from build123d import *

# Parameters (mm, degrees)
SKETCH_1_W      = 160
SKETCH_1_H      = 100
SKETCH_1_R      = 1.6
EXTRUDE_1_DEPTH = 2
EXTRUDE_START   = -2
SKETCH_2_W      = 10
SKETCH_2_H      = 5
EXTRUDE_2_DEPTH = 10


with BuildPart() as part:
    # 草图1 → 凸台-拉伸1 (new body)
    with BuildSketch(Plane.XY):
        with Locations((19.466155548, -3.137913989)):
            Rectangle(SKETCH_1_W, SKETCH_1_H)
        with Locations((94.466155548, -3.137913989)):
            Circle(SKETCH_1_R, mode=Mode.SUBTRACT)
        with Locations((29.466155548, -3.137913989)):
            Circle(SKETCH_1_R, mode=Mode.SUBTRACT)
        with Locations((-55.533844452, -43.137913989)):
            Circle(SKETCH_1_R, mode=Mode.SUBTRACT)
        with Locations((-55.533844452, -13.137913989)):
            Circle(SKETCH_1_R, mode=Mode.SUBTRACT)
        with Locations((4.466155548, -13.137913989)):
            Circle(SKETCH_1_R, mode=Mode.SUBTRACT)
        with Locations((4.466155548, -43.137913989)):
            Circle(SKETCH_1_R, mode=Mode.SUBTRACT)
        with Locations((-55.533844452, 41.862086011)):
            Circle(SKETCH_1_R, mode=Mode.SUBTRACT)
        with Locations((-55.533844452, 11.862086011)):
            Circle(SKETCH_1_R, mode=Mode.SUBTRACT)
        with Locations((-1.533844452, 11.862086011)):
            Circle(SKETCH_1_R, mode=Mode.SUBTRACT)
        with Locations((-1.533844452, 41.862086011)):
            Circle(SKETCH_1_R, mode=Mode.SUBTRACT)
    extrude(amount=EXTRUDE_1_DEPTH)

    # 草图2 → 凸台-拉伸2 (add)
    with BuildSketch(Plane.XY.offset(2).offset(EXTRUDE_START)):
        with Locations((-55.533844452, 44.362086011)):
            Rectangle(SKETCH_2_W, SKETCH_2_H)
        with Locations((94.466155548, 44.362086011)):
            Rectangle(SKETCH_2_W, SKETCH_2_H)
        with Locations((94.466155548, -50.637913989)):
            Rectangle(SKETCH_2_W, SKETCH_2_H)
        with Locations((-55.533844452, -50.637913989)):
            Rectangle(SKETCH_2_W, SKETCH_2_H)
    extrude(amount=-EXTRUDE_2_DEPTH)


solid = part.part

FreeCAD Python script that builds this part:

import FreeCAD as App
import Part
import Sketcher
Q = App.Units.Quantity


def add_polygon(sketch, points):
    """Adds a closed chain of lines whose ends are joined by coincident constraints."""
    first, n = sketch.GeometryCount, len(points)
    for a, b in zip(points, points[1:] + points[:1]):
        sketch.addGeometry(Part.LineSegment(App.Vector(*a, 0), App.Vector(*b, 0)), False)
    for i in range(n):
        sketch.addConstraint(Sketcher.Constraint("Coincident", first + i, 2, first + (i + 1) % n, 1))

doc = App.newDocument("Part")
body = doc.addObject("PartDesign::Body", "Body")

sketch1 = body.newObject("Sketcher::SketchObject", "Sketch")
sketch1.AttachmentSupport = (doc.getObject("XY_Plane"), [""])
sketch1.MapMode = "FlatFace"
add_polygon(sketch1, [(-60.5, 46.9), (-60.5, -53.1), (99.5, -53.1), (99.5, 46.9)])
sketch1.addGeometry(Part.Circle(App.Vector(-55.5, -43.1, 0), App.Vector(0, 0, 1), 1.6), False)
sketch1.addGeometry(Part.Circle(App.Vector(4.5, -43.1, 0), App.Vector(0, 0, 1), 1.6), False)
sketch1.addGeometry(Part.Circle(App.Vector(-55.5, -13.1, 0), App.Vector(0, 0, 1), 1.6), False)
sketch1.addGeometry(Part.Circle(App.Vector(4.5, -13.1, 0), App.Vector(0, 0, 1), 1.6), False)
sketch1.addGeometry(Part.Circle(App.Vector(29.5, -3.1, 0), App.Vector(0, 0, 1), 1.6), False)
sketch1.addGeometry(Part.Circle(App.Vector(94.5, -3.1, 0), App.Vector(0, 0, 1), 1.6), False)
sketch1.addGeometry(Part.Circle(App.Vector(-55.5, 11.9, 0), App.Vector(0, 0, 1), 1.6), False)
sketch1.addGeometry(Part.Circle(App.Vector(-1.5, 11.9, 0), App.Vector(0, 0, 1), 1.6), False)
sketch1.addGeometry(Part.Circle(App.Vector(-55.5, 41.9, 0), App.Vector(0, 0, 1), 1.6), False)
sketch1.addGeometry(Part.Circle(App.Vector(-1.5, 41.9, 0), App.Vector(0, 0, 1), 1.6), False)
sketch1.addConstraint([
    Sketcher.Constraint("Vertical", 0),
    Sketcher.Constraint("Horizontal", 1),
    Sketcher.Constraint("Vertical", 2),
    Sketcher.Constraint("Horizontal", 3),
    Sketcher.Constraint("Equal", 4, 5),
    Sketcher.Constraint("Equal", 5, 6),
    Sketcher.Constraint("Equal", 6, 7),
    Sketcher.Constraint("Equal", 7, 8),
    Sketcher.Constraint("Equal", 8, 9),
    Sketcher.Constraint("Equal", 9, 10),
    Sketcher.Constraint("Equal", 10, 11),
    Sketcher.Constraint("Equal", 11, 12),
    Sketcher.Constraint("Equal", 12, 13),
    Sketcher.Constraint("Horizontal", 4, 3, 5, 3),
    Sketcher.Constraint("Horizontal", 6, 3, 7, 3),
    Sketcher.Constraint("Horizontal", 8, 3, 9, 3),
    Sketcher.Constraint("Horizontal", 10, 3, 11, 3),
    Sketcher.Constraint("Horizontal", 12, 3, 13, 3),
    Sketcher.Constraint("Vertical", 4, 3, 6, 3),
    Sketcher.Constraint("Vertical", 5, 3, 7, 3),
    Sketcher.Constraint("Vertical", 6, 3, 10, 3),
    Sketcher.Constraint("Vertical", 10, 3, 12, 3),
    Sketcher.Constraint("Vertical", 11, 3, 13, 3),
    Sketcher.Constraint("Diameter", 4, Q("3.2 mm")),
    Sketcher.Constraint("DistanceX", 1, 1, 1, 2, Q("160 mm")),
    Sketcher.Constraint("DistanceY", 0, 2, 0, 1, Q("100 mm")),
    Sketcher.Constraint("DistanceX", 4, 3, 5, 3, Q("60 mm")),
    Sketcher.Constraint("DistanceY", 4, 3, 6, 3, Q("30 mm")),
    Sketcher.Constraint("DistanceX", 7, 3, 8, 3, Q("25 mm")),
    Sketcher.Constraint("DistanceY", 7, 3, 8, 3, Q("10 mm")),
    Sketcher.Constraint("DistanceX", 8, 3, 9, 3, Q("65 mm")),
    Sketcher.Constraint("DistanceY", 6, 3, 10, 3, Q("25 mm")),
    Sketcher.Constraint("DistanceX", 11, 3, 7, 3, Q("6 mm")),
    Sketcher.Constraint("DistanceY", 10, 3, 12, 3, Q("30 mm")),
    Sketcher.Constraint("DistanceX", 0, 2, 4, 3, Q("5 mm")),
    Sketcher.Constraint("DistanceY", 0, 2, 4, 3, Q("10 mm")),
    Sketcher.Constraint("DistanceX", 4, 3, -1, 1, Q("55.533844 mm")),
    Sketcher.Constraint("DistanceY", 4, 3, -1, 1, Q("43.137914 mm")),
])
pad1 = body.newObject("PartDesign::Pad", "Pad")
pad1.Profile = sketch1
pad1.Length = 2

sketch2 = body.newObject("Sketcher::SketchObject", "Sketch001")
sketch2.AttachmentSupport = (doc.getObject("XY_Plane"), [""])
sketch2.MapMode = "FlatFace"
add_polygon(sketch2, [(-61, 47), (-61, 42), (-51, 42), (-51, 47)])
add_polygon(sketch2, [(89, 47), (89, 42), (99, 42), (99, 47)])
add_polygon(sketch2, [(89, -48), (89, -53), (99, -53), (99, -48)])
add_polygon(sketch2, [(-61, -48), (-61, -53), (-51, -53), (-51, -48)])
sketch2.addConstraint([
    Sketcher.Constraint("Vertical", 0),
    Sketcher.Constraint("Horizontal", 1),
    Sketcher.Constraint("Vertical", 2),
    Sketcher.Constraint("Horizontal", 3),
    Sketcher.Constraint("Vertical", 4),
    Sketcher.Constraint("Horizontal", 5),
    Sketcher.Constraint("Vertical", 6),
    Sketcher.Constraint("Horizontal", 7),
    Sketcher.Constraint("Vertical", 8),
    Sketcher.Constraint("Horizontal", 9),
    Sketcher.Constraint("Vertical", 10),
    Sketcher.Constraint("Horizontal", 11),
    Sketcher.Constraint("Vertical", 12),
    Sketcher.Constraint("Horizontal", 13),
    Sketcher.Constraint("Vertical", 14),
    Sketcher.Constraint("Horizontal", 15),
    Sketcher.Constraint("Horizontal", 1, 2, 4, 2),
    Sketcher.Constraint("Horizontal", 3, 2, 6, 2),
    Sketcher.Constraint("Horizontal", 9, 2, 12, 2),
    Sketcher.Constraint("Horizontal", 11, 2, 14, 2),
    Sketcher.Constraint("Vertical", 7, 2, 8, 2),
    Sketcher.Constraint("Vertical", 6, 2, 9, 2),
    Sketcher.Constraint("Vertical", 3, 2, 12, 2),
    Sketcher.Constraint("Vertical", 2, 2, 13, 2),
    Sketcher.Constraint("Equal", 3, 5),
    Sketcher.Constraint("Equal", 6, 8),
    Sketcher.Constraint("DistanceX", 1, 1, 1, 2, Q("10 mm")),
    Sketcher.Constraint("DistanceY", 0, 2, 0, 1, Q("5 mm")),
    Sketcher.Constraint("DistanceX", 1, 2, 4, 2, Q("140 mm")),
    Sketcher.Constraint("DistanceY", 8, 2, 4, 2, Q("95 mm")),
    Sketcher.Constraint("DistanceX", 0, 2, -1, 1, Q("60.533844 mm")),
    Sketcher.Constraint("DistanceY", -1, 1, 0, 2, Q("41.862086 mm")),
])
pad2 = body.newObject("PartDesign::Pad", "Pad001")
pad2.Profile = sketch2
pad2.Length = 10
pad2.Reversed = True

doc.recompute()
